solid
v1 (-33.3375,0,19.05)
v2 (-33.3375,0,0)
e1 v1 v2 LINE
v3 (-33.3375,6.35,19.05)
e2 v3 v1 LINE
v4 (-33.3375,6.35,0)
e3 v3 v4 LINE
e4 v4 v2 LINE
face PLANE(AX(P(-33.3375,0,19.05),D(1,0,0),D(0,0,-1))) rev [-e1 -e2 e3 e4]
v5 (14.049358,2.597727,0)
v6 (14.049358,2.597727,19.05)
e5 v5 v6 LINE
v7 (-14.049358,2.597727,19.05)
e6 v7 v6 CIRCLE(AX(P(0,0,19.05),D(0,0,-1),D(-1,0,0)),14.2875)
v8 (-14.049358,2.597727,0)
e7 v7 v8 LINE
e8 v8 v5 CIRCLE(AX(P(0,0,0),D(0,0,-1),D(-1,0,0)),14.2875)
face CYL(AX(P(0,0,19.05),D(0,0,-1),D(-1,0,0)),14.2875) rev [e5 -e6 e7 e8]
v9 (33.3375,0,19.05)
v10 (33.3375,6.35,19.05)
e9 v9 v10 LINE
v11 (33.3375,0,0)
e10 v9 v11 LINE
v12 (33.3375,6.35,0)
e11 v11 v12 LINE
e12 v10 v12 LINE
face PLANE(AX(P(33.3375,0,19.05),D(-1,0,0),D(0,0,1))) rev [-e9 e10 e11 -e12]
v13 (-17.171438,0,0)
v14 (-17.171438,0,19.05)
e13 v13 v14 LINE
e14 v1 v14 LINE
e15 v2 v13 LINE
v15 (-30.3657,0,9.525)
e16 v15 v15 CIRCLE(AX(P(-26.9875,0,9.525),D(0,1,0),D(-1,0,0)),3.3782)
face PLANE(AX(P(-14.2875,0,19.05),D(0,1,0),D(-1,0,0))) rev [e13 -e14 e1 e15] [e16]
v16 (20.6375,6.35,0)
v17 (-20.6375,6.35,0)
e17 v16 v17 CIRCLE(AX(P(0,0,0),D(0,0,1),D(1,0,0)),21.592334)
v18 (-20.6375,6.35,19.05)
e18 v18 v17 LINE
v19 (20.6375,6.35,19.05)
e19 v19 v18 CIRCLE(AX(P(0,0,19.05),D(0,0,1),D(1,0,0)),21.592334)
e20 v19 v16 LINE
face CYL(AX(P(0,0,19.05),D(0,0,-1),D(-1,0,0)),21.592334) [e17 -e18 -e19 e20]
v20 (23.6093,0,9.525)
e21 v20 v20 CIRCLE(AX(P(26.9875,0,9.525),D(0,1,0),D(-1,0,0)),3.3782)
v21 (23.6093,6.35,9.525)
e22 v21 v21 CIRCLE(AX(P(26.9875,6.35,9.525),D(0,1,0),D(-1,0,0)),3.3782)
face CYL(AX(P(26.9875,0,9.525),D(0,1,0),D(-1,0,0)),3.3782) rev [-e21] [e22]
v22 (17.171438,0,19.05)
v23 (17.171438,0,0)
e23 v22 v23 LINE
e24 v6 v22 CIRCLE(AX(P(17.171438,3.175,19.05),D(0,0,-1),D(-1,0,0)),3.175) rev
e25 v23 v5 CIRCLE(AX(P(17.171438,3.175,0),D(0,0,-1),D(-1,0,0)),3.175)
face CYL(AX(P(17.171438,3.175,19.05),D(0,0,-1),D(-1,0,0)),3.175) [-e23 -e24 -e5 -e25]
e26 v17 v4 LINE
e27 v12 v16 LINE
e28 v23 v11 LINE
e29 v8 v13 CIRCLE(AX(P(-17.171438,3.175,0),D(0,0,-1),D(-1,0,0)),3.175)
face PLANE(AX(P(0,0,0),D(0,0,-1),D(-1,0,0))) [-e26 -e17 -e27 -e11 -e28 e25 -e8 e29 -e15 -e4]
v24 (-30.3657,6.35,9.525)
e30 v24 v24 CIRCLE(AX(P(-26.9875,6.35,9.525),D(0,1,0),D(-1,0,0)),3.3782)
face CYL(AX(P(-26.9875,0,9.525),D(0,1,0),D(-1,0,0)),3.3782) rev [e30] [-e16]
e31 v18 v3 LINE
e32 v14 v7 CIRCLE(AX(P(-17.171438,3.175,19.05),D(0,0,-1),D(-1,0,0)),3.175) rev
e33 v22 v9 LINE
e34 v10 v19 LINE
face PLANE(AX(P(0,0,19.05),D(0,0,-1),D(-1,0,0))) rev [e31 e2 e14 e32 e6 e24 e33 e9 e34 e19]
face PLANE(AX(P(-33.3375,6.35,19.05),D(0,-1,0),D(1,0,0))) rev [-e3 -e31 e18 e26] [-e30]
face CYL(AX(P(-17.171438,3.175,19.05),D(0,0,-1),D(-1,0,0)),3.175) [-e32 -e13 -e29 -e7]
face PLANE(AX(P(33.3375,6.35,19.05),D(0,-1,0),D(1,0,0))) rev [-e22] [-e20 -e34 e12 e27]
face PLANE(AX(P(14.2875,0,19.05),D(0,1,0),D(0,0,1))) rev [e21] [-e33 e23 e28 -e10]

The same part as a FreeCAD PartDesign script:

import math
import FreeCAD as App
import Part
import Sketcher
Q = App.Units.Quantity


def edges_at(feature, points):
    """Names of the edges that pass closest to the given points."""
    edges = feature.Shape.Edges
    near = lambda p: min(range(len(edges)), key=lambda i: edges[i].distToShape(Part.Vertex(*p))[0])
    return sorted({f"Edge{near(p) + 1}" for p in points})

doc = App.newDocument("Part")
body = doc.addObject("PartDesign::Body", "Body")

# Sketch on XY plane
sketch1 = body.newObject("Sketcher::SketchObject", "Sketch")
sketch1.AttachmentSupport = (doc.getObject("XY_Plane"), [""])
sketch1.MapMode = "FlatFace"
sketch1.addGeometry([
    Part.LineSegment(App.Vector(14, 0, 0), App.Vector(33, 0, 0)),  # 0
    Part.LineSegment(App.Vector(33, 0, 0), App.Vector(33, 6, 0)),  # 1
    Part.LineSegment(App.Vector(33, 6, 0), App.Vector(21, 6, 0)),  # 2
    Part.ArcOfCircle(Part.Circle(App.Vector(0, 0, 0), App.Vector(0, 0, 1), 22), math.radians(17), math.radians(163)),  # 3
    Part.LineSegment(App.Vector(-21, 6, 0), App.Vector(-33, 6, 0)),  # 4
    Part.LineSegment(App.Vector(-33, 6, 0), App.Vector(-33, 0, 0)),  # 5
    Part.LineSegment(App.Vector(-33, 0, 0), App.Vector(-14, 0, 0)),  # 6
    Part.ArcOfCircle(Part.Circle(App.Vector(0, 0, 0), App.Vector(0, 0, 1), 14), math.radians(0), math.radians(180)),  # 7
], False)
sketch1.addConstraint([
    Sketcher.Constraint("Coincident", 0, 2, 1, 1),
    Sketcher.Constraint("Coincident", 1, 2, 2, 1),
    Sketcher.Constraint("Coincident", 2, 2, 3, 1),
    Sketcher.Constraint("Coincident", 3, 2, 4, 1),
    Sketcher.Constraint("Coincident", 4, 2, 5, 1),
    Sketcher.Constraint("Coincident", 5, 2, 6, 1),
    Sketcher.Constraint("Coincident", 6, 2, 7, 2),
    Sketcher.Constraint("Coincident", 7, 1, 0, 1),
    Sketcher.Constraint("Horizontal", 0),
    Sketcher.Constraint("Vertical", 1),
    Sketcher.Constraint("Horizontal", 2),
    Sketcher.Constraint("Horizontal", 4),
    Sketcher.Constraint("Vertical", 5),
    Sketcher.Constraint("Horizontal", 6),
    Sketcher.Constraint("Coincident", 3, 3, -1, 1),
    Sketcher.Constraint("Coincident", 7, 3, -1, 1),
    Sketcher.Constraint("Symmetric", 0, 2, 5, 2, -1, 1),
    Sketcher.Constraint("PointOnObject", 0, 2, -1),
    Sketcher.Constraint("Horizontal", 2, 2, 3, 2),
    Sketcher.Constraint("DistanceX", 2, 2, 2, 1, Q("0.5 in")),
    Sketcher.Constraint("Radius", 7, Q("0.5625 in")),
    Sketcher.Constraint("DistanceX", 0, 1, 0, 2, Q("0.75 in")),
    Sketcher.Constraint("DistanceY", 1, 1, 1, 2, Q("0.25 in")),
])
pad1 = body.newObject("PartDesign::Pad", "Pad")
pad1.Profile = sketch1
pad1.Length = Q("0.75 in")

# Sketch on XZ plane
sketch2 = body.newObject("Sketcher::SketchObject", "Sketch001")
sketch2.AttachmentSupport = (doc.getObject("XZ_Plane"), [""])
sketch2.MapMode = "FlatFace"
sketch2.AttachmentOffset = App.Placement(App.Vector(0, 0, -0.25 * 25.4), App.Rotation())
sketch2.addGeometry([
    Part.Circle(App.Vector(27, 9.5, 0), App.Vector(0, 0, 1), 3.4),
    Part.Circle(App.Vector(-27, 9.5, 0), App.Vector(0, 0, 1), 3.4),
], False)
sketch2.addConstraint([
    Sketcher.Constraint("Equal", 0, 1),
    Sketcher.Constraint("Symmetric", 0, 3, 1, 3, -2),
    Sketcher.Constraint("Diameter", 0, Q("0.266 in")),
    Sketcher.Constraint("DistanceX", -1, 1, 0, 3, Q("1.0625 in")),
    Sketcher.Constraint("DistanceY", -1, 1, 0, 3, Q("0.375 in")),
])
pocket1 = body.newObject("PartDesign::Pocket", "Pocket")
pocket1.Profile = sketch2
pocket1.Type = "ThroughAll"
pocket1.Reversed = True
doc.recompute()

fillet = body.newObject("PartDesign::Fillet", "Fillet")
fillet.Base = (pocket1, edges_at(pocket1, [(-14.287, 0, 9.525), (14.287, 0, 9.525)]))
fillet.Radius = Q("0.125 in")

doc.recompute()
